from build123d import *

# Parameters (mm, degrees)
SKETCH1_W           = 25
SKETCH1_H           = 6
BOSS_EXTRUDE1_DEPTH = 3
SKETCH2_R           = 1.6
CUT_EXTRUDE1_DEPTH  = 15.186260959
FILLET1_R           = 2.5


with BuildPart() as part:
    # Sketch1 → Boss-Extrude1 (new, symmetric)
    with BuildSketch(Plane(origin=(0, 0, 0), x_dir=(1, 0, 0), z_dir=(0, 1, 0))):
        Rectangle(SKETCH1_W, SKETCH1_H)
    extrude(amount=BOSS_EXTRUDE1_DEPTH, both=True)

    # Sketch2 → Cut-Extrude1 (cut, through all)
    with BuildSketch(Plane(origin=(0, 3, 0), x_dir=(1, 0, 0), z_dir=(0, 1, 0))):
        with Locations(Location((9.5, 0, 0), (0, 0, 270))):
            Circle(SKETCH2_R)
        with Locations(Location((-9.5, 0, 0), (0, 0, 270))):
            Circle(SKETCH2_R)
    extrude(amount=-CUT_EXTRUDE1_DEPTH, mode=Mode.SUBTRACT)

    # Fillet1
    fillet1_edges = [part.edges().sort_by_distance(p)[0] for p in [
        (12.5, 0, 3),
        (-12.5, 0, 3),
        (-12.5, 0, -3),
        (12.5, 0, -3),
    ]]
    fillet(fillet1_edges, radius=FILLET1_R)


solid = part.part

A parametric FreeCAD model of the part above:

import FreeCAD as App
import Part
import Sketcher

V = App.Vector
Q = App.Units.Quantity


def edges_at(feature, points):
    """Names of the edges that pass closest to the given points."""
    edges = feature.Shape.Edges
    near = lambda p: min(range(len(edges)), key=lambda i: edges[i].distToShape(Part.Vertex(*p))[0])
    return sorted({f"Edge{near(p) + 1}" for p in points})

doc = App.newDocument("Part")
body = doc.addObject("PartDesign::Body", "Body")

sketch1 = body.newObject("Sketcher::SketchObject", "Sketch")
sketch1.AttachmentSupport = (doc.getObject("XZ_Plane"), [""])
sketch1.MapMode = "FlatFace"
sketch1.addGeometry([
    Part.LineSegment(V(-12.5, -3, 0), V(-12.5, 3, 0)),
    Part.LineSegment(V(-12.5, 3, 0), V(12.5, 3, 0)),
    Part.LineSegment(V(12.5, 3, 0), V(12.5, -3, 0)),
    Part.LineSegment(V(12.5, -3, 0), V(-12.5, -3, 0)),
], False)
sketch1.addConstraint([
    Sketcher.Constraint("Coincident", 0, 2, 1, 1),
    Sketcher.Constraint("Coincident", 1, 2, 2, 1),
    Sketcher.Constraint("Coincident", 2, 2, 3, 1),
    Sketcher.Constraint("Coincident", 3, 2, 0, 1),
    Sketcher.Constraint("Vertical", 0),
    Sketcher.Constraint("Horizontal", 1),
    Sketcher.Constraint("Vertical", 2),
    Sketcher.Constraint("Horizontal", 3),
    Sketcher.Constraint("Symmetric", 0, 2, 2, 2, -1, 1),
    Sketcher.Constraint("DistanceX", 1, 1, 1, 2, Q("25 mm")),
    Sketcher.Constraint("DistanceY", 0, 1, 0, 2, Q("6 mm")),
])
pad1 = body.newObject("PartDesign::Pad", "Pad")
pad1.Profile = sketch1
pad1.Length = 6
pad1.Midplane = True

sketch2 = body.newObject("Sketcher::SketchObject", "Sketch001")
sketch2.AttachmentSupport = (doc.getObject("XZ_Plane"), [""])
sketch2.MapMode = "FlatFace"
sketch2.AttachmentOffset = App.Placement(V(0, 0, -3), App.Rotation())
sketch2.addGeometry([
    Part.Circle(V(9.5, 0, 0), V(0, 0, 1), 1.6),
    Part.Circle(V(-9.5, 0, 0), V(0, 0, 1), 1.6),
], False)
sketch2.addConstraint([
    Sketcher.Constraint("Equal", 0, 1),
    Sketcher.Constraint("Symmetric", 0, 3, 1, 3, -1, 1),
    Sketcher.Constraint("PointOnObject", 0, 3, -1),
    Sketcher.Constraint("Diameter", 0, Q("3.2 mm")),
    Sketcher.Constraint("DistanceX", 1, 3, 0, 3, Q("19 mm")),
])
pocket1 = body.newObject("PartDesign::Pocket", "Pocket")
pocket1.Profile = sketch2
pocket1.Type = "ThroughAll"
pocket1.Reversed = True
doc.recompute()

fillet = body.newObject("PartDesign::Fillet", "Fillet")
fillet.Base = (pocket1, edges_at(pocket1, [
    (12.5, 0, 3),
    (-12.5, 0, 3),
    (-12.5, 0, -3),
    (12.5, 0, -3),
]))
fillet.Radius = 2.5

doc.recompute()
